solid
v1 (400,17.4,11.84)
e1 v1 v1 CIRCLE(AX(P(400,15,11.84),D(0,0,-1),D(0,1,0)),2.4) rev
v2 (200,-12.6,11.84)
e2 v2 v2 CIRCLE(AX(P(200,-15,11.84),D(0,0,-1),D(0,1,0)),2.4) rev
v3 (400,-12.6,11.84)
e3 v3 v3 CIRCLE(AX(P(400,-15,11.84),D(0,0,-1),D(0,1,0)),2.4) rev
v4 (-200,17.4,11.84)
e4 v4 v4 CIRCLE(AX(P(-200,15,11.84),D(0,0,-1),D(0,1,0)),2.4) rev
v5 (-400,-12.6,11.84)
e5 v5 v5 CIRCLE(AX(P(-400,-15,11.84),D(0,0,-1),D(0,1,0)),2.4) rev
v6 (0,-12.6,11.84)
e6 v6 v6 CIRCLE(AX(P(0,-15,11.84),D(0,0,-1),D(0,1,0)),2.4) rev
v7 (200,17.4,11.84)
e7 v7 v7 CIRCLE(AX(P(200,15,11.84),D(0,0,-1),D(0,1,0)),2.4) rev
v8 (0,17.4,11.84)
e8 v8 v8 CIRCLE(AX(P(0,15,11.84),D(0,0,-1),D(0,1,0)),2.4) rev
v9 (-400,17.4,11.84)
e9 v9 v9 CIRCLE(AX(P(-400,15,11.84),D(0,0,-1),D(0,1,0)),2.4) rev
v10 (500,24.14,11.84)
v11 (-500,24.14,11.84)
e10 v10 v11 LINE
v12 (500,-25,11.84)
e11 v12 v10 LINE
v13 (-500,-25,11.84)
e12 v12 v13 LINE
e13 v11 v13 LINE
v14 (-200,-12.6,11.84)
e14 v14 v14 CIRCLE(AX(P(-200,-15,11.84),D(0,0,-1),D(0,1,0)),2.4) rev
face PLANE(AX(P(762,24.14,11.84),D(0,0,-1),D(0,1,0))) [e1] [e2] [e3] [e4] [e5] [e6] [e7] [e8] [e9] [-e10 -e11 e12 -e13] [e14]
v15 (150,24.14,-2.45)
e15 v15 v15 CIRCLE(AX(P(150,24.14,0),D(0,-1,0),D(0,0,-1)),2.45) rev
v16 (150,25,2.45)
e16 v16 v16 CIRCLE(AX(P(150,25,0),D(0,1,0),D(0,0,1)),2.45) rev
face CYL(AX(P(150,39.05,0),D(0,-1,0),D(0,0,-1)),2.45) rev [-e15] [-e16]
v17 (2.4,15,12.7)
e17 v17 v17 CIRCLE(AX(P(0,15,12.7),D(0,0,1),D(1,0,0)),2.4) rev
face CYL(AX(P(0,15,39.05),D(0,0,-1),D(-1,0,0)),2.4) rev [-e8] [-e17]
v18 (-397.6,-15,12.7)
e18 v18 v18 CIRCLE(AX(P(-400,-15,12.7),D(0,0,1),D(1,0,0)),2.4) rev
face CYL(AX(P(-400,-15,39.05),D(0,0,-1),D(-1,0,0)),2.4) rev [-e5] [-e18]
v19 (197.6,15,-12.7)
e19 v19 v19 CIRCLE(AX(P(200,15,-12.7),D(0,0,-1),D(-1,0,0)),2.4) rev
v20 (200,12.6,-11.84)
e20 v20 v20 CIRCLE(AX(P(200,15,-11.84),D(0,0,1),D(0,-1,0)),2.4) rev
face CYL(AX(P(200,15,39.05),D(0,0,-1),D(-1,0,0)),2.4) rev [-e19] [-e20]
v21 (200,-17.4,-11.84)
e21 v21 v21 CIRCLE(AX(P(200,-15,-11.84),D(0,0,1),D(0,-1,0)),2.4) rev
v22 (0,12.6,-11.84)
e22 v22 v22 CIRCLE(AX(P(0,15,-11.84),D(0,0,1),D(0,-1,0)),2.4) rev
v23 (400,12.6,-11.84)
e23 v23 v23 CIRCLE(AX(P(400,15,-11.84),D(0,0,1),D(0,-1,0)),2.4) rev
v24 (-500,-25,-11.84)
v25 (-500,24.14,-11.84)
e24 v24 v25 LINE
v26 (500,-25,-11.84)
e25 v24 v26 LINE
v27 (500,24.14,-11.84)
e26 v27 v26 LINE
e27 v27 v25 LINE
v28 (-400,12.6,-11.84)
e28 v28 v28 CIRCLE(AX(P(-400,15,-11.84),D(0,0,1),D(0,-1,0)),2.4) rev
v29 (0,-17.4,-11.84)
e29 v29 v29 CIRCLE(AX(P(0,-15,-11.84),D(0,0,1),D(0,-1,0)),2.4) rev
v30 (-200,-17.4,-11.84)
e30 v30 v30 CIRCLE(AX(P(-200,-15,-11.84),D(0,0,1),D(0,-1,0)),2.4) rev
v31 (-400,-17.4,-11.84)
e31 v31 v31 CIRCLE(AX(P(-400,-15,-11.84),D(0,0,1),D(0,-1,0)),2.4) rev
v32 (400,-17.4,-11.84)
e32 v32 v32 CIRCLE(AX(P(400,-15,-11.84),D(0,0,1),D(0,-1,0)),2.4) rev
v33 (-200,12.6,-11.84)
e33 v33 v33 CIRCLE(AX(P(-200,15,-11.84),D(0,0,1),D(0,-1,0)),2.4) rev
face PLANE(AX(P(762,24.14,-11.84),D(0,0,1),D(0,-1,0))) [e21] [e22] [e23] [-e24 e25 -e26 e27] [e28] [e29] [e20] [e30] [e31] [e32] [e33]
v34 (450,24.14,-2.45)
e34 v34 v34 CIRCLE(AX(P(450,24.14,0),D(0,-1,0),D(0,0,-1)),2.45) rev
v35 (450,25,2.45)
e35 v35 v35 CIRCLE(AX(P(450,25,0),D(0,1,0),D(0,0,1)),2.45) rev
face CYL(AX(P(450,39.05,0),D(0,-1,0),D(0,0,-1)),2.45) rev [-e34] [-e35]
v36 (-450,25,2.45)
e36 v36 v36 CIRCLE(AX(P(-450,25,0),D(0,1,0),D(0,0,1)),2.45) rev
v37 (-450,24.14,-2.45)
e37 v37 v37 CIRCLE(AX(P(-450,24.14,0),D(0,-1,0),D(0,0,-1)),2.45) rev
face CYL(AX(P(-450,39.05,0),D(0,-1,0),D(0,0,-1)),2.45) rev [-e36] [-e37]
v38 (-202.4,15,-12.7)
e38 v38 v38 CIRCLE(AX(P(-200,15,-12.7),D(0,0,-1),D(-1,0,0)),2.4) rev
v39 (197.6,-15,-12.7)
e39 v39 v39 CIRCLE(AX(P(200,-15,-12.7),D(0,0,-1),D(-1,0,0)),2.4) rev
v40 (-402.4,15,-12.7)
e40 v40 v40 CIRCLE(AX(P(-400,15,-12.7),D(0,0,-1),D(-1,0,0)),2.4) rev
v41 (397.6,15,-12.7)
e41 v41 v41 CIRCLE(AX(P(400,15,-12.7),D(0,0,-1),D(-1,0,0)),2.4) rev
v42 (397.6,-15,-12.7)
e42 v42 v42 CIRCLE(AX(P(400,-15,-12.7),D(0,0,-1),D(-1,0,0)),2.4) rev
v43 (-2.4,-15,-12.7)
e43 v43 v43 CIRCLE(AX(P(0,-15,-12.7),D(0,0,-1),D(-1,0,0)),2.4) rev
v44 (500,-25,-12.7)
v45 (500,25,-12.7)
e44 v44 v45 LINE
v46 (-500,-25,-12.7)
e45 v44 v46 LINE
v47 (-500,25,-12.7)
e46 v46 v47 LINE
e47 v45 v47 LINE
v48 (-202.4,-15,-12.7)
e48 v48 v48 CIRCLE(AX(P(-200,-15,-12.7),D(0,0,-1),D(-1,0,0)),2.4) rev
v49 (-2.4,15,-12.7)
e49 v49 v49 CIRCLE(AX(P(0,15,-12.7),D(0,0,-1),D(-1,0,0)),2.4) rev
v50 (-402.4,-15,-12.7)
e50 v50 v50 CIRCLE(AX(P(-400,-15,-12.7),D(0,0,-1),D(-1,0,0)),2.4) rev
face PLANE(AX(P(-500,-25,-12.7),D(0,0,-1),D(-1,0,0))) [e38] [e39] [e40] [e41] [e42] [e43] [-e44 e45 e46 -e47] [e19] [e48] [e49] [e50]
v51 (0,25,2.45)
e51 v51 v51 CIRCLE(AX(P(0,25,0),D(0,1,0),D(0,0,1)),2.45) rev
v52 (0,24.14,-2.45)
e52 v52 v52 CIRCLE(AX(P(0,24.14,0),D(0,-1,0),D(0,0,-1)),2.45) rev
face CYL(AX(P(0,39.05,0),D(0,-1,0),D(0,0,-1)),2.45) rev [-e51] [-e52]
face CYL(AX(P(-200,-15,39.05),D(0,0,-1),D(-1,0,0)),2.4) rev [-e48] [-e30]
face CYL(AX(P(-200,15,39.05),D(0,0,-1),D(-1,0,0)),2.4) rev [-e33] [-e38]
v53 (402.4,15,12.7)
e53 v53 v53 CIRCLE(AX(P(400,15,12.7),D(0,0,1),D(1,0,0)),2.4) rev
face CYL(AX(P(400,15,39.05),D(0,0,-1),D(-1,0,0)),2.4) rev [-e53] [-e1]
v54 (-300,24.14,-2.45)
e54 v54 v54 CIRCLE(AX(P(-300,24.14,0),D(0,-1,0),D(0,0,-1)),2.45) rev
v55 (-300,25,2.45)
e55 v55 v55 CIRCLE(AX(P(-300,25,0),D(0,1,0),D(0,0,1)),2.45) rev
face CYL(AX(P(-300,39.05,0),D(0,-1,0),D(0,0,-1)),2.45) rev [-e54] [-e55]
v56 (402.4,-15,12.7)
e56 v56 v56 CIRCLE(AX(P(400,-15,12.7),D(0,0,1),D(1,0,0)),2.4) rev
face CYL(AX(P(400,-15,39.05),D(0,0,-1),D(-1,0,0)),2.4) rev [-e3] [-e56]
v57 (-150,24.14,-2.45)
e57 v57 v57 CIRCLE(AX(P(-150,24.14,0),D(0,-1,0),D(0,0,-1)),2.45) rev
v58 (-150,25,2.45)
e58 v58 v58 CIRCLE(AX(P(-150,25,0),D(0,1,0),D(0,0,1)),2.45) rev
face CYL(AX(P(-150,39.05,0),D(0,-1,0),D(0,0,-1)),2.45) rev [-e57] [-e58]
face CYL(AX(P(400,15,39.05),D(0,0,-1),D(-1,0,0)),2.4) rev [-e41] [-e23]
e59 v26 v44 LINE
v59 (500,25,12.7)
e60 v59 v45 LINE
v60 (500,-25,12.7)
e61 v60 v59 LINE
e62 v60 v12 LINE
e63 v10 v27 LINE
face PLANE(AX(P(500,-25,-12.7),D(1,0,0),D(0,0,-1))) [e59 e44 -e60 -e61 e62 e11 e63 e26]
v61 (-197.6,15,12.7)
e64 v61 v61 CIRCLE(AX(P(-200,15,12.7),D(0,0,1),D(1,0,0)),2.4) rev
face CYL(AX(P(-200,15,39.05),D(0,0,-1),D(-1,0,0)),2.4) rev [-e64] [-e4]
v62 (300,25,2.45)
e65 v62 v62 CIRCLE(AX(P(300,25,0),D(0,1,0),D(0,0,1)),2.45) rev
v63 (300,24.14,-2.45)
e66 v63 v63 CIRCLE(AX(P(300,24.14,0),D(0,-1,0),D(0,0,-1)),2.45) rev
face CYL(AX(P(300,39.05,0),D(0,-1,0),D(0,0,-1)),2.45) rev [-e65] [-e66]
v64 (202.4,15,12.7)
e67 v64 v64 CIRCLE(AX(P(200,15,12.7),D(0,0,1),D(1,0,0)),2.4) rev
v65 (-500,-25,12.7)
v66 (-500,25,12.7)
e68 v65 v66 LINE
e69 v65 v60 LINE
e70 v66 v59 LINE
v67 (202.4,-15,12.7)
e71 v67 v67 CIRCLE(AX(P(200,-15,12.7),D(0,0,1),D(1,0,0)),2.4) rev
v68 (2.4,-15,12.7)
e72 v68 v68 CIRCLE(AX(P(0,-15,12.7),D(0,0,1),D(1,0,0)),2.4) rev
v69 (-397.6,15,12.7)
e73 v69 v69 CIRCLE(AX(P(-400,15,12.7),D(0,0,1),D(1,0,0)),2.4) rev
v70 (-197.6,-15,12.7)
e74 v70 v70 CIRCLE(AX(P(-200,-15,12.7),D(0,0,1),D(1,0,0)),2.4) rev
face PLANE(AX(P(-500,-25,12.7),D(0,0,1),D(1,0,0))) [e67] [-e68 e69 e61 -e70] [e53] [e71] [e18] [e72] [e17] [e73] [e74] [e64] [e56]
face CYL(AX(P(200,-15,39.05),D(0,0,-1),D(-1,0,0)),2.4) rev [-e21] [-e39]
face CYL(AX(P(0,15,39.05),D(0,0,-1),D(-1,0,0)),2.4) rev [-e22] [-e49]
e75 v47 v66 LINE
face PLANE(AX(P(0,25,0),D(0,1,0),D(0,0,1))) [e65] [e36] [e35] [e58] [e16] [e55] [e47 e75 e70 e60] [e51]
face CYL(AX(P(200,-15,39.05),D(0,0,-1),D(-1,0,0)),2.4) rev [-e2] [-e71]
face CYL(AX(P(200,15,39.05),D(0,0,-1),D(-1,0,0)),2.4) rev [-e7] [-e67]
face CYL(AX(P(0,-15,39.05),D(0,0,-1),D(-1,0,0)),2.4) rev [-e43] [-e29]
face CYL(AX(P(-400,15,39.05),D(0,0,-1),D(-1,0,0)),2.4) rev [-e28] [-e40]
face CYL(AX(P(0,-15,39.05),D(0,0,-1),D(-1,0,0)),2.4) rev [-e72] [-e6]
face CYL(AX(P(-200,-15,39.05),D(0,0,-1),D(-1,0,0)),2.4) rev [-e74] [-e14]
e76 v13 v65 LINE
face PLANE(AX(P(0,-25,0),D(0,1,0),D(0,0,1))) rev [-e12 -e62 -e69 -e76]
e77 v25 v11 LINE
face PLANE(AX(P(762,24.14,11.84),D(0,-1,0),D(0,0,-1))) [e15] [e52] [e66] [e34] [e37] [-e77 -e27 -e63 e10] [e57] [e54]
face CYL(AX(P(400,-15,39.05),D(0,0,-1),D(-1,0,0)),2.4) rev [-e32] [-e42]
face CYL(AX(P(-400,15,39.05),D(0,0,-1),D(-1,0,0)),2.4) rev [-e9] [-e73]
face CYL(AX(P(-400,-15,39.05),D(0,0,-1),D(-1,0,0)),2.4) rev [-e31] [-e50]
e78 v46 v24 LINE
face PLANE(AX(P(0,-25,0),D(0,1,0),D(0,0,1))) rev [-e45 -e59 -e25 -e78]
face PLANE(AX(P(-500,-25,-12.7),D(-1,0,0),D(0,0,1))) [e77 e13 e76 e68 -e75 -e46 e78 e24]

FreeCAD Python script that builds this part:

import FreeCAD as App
import Part
import Sketcher
from FreeCAD import Vector

doc = App.newDocument("Part")
body = doc.addObject("PartDesign::Body", "Body")

# Sketch on XZ plane
sketch1 = doc.addObject("Sketcher::SketchObject", "Sketch")
body.addObject(sketch1)
sketch1.AttachmentSupport = (doc.XZ_Plane, [""])
sketch1.MapMode = "FlatFace"
sketch1.addGeometry([
    Part.LineSegment(Vector(-500, -12.7, 0), Vector(-500, 12.7, 0)),
    Part.LineSegment(Vector(-500, 12.7, 0), Vector(500, 12.7, 0)),
    Part.LineSegment(Vector(500, 12.7, 0), Vector(500, -12.7, 0)),
    Part.LineSegment(Vector(500, -12.7, 0), Vector(-500, -12.7, 0)),
], False)
sketch1.addConstraint([
    Sketcher.Constraint("Coincident", 0, 2, 1, 1),
    Sketcher.Constraint("Coincident", 1, 2, 2, 1),
    Sketcher.Constraint("Coincident", 2, 2, 3, 1),
    Sketcher.Constraint("Coincident", 3, 2, 0, 1),
    Sketcher.Constraint("Vertical", 0),
    Sketcher.Constraint("Horizontal", 1),
    Sketcher.Constraint("Vertical", 2),
    Sketcher.Constraint("Horizontal", 3),
    Sketcher.Constraint("Symmetric", 0, 2, 2, 2, -1, 1),
    Sketcher.Constraint("DistanceX", 1, 1, 1, 2, 1000.0),
    Sketcher.Constraint("DistanceY", 0, 1, 0, 2, 25.4),
])
pad1 = doc.addObject("PartDesign::Pad", "Pad")
body.addObject(pad1)
pad1.Profile = sketch1
pad1.Type = "TwoLengths"
pad1.Length = 25
pad1.Length2 = 25
pad1.Reversed = True

# Sketch on YZ plane
sketch2 = doc.addObject("Sketcher::SketchObject", "Sketch001")
body.addObject(sketch2)
sketch2.AttachmentSupport = (doc.YZ_Plane, [""])
sketch2.MapMode = "FlatFace"
sketch2.addGeometry([
    Part.LineSegment(Vector(24.14, 11.84, 0), Vector(-25.573199, 11.84, 0)),
    Part.LineSegment(Vector(-25.573199, 11.84, 0), Vector(-25.573199, -11.84, 0)),
    Part.LineSegment(Vector(-25.573199, -11.84, 0), Vector(24.14, -11.84, 0)),
    Part.LineSegment(Vector(24.14, -11.84, 0), Vector(24.14, 11.84, 0)),
], False)
sketch2.addConstraint([
    Sketcher.Constraint("Coincident", 0, 2, 1, 1),
    Sketcher.Constraint("Coincident", 1, 2, 2, 1),
    Sketcher.Constraint("Coincident", 2, 2, 3, 1),
    Sketcher.Constraint("Coincident", 3, 2, 0, 1),
    Sketcher.Constraint("Horizontal", 0),
    Sketcher.Constraint("Vertical", 1),
    Sketcher.Constraint("Horizontal", 2),
    Sketcher.Constraint("Vertical", 3),
    Sketcher.Constraint("DistanceY", 1, 2, 1, 1, 23.68),
    Sketcher.Constraint("DistanceY", -1, 1, 0, 2, 11.84),
    Sketcher.Constraint("DistanceX", -1, 1, 2, 2, 24.14),
    Sketcher.Constraint("DistanceX", 0, 2, 0, 1, 49.713199),
])
pocket1 = doc.addObject("PartDesign::Pocket", "Pocket")
body.addObject(pocket1)
pocket1.Profile = sketch2
pocket1.Type = "ThroughAll"
pocket1.Midplane = True

# Sketch on XZ plane
sketch3 = doc.addObject("Sketcher::SketchObject", "Sketch002")
body.addObject(sketch3)
sketch3.AttachmentSupport = (doc.XZ_Plane, [""])
sketch3.MapMode = "FlatFace"
sketch3.addGeometry([
    Part.Circle(Vector(0, 0, 0), Vector(0, 0, 1), 2.45),  # 0
    Part.Circle(Vector(150, 0, 0), Vector(0, 0, 1), 2.45),  # 1
    Part.Circle(Vector(300, 0, 0), Vector(0, 0, 1), 2.45),  # 2
    Part.Circle(Vector(450, 0, 0), Vector(0, 0, 1), 2.45),  # 3
    Part.Circle(Vector(-150, 0, 0), Vector(0, 0, 1), 2.45),  # 4
    Part.Circle(Vector(-300, 0, 0), Vector(0, 0, 1), 2.45),  # 5
    Part.Circle(Vector(-450, 0, 0), Vector(0, 0, 1), 2.45),  # 6
], False)
sketch3.addConstraint([
    Sketcher.Constraint("Coincident", 0, 3, -1, 1),
    Sketcher.Constraint("Equal", 0, 1),
    Sketcher.Constraint("Equal", 1, 2),
    Sketcher.Constraint("Equal", 2, 3),
    Sketcher.Constraint("Equal", 3, 4),
    Sketcher.Constraint("Equal", 4, 5),
    Sketcher.Constraint("Equal", 5, 6),
    Sketcher.Constraint("Symmetric", 1, 3, 4, 3, -1, 1),
    Sketcher.Constraint("Symmetric", 2, 3, 5, 3, -1, 1),
    Sketcher.Constraint("Symmetric", 3, 3, 6, 3, -1, 1),
    Sketcher.Constraint("PointOnObject", 1, 3, -1),
    Sketcher.Constraint("PointOnObject", 2, 3, -1),
    Sketcher.Constraint("PointOnObject", 3, 3, -1),
    Sketcher.Constraint("Diameter", 0, 4.9),
    Sketcher.Constraint("DistanceX", -1, 1, 1, 3, 150.0),
    Sketcher.Constraint("DistanceX", -1, 1, 2, 3, 300.0),
    Sketcher.Constraint("DistanceX", -1, 1, 3, 3, 450.0),
])
pocket2 = doc.addObject("PartDesign::Pocket", "Pocket001")
body.addObject(pocket2)
pocket2.Profile = sketch3
pocket2.Length = 39.05

# Sketch on XY plane
sketch4 = doc.addObject("Sketcher::SketchObject", "Sketch003")
body.addObject(sketch4)
sketch4.AttachmentSupport = (doc.XY_Plane, [""])
sketch4.MapMode = "FlatFace"
sketch4.addGeometry([
    Part.Circle(Vector(0, 15, 0), Vector(0, 0, 1), 2.4),  # 0
    Part.Circle(Vector(0, -15, 0), Vector(0, 0, 1), 2.4),  # 1
    Part.Circle(Vector(200, 15, 0), Vector(0, 0, 1), 2.4),  # 2
    Part.Circle(Vector(200, -15, 0), Vector(0, 0, 1), 2.4),  # 3
    Part.Circle(Vector(400, 15, 0), Vector(0, 0, 1), 2.4),  # 4
    Part.Circle(Vector(400, -15, 0), Vector(0, 0, 1), 2.4),  # 5
    Part.Circle(Vector(600, 15, 0), Vector(0, 0, 1), 2.4),  # 6
    Part.Circle(Vector(600, -15, 0), Vector(0, 0, 1), 2.4),  # 7
    Part.Circle(Vector(-200, 15, 0), Vector(0, 0, 1), 2.4),  # 8
    Part.Circle(Vector(-200, -15, 0), Vector(0, 0, 1), 2.4),  # 9
    Part.Circle(Vector(-400, 15, 0), Vector(0, 0, 1), 2.4),  # 10
    Part.Circle(Vector(-400, -15, 0), Vector(0, 0, 1), 2.4),  # 11
    Part.Circle(Vector(-600, 15, 0), Vector(0, 0, 1), 2.4),  # 12
    Part.Circle(Vector(-600, -15, 0), Vector(0, 0, 1), 2.4),  # 13
], False)
sketch4.addConstraint([
    Sketcher.Constraint("Equal", 0, 1),
    Sketcher.Constraint("Equal", 1, 2),
    Sketcher.Constraint("Equal", 2, 3),
    Sketcher.Constraint("Equal", 3, 4),
    Sketcher.Constraint("Equal", 4, 5),
    Sketcher.Constraint("Equal", 5, 6),
    Sketcher.Constraint("Equal", 6, 7),
    Sketcher.Constraint("Equal", 7, 8),
    Sketcher.Constraint("Equal", 8, 9),
    Sketcher.Constraint("Equal", 9, 10),
    Sketcher.Constraint("Equal", 10, 11),
    Sketcher.Constraint("Equal", 11, 12),
    Sketcher.Constraint("Equal", 12, 13),
    Sketcher.Constraint("Symmetric", 0, 3, 1, 3, -1, 1),
    Sketcher.Constraint("Symmetric", 3, 3, 8, 3, -1, 1),
    Sketcher.Constraint("Symmetric", 2, 3, 9, 3, -1, 1),
    Sketcher.Constraint("Symmetric", 5, 3, 10, 3, -1, 1),
    Sketcher.Constraint("Symmetric", 4, 3, 11, 3, -1, 1),
    Sketcher.Constraint("Symmetric", 7, 3, 12, 3, -1, 1),
    Sketcher.Constraint("Symmetric", 6, 3, 13, 3, -1, 1),
    Sketcher.Constraint("Symmetric", 2, 3, 8, 3, -2),
    Sketcher.Constraint("Symmetric", 4, 3, 10, 3, -2),
    Sketcher.Constraint("Symmetric", 6, 3, 12, 3, -2),
    Sketcher.Constraint("PointOnObject", 0, 3, -2),
    Sketcher.Constraint("Horizontal", 0, 3, 2, 3),
    Sketcher.Constraint("Horizontal", 2, 3, 4, 3),
    Sketcher.Constraint("Horizontal", 4, 3, 6, 3),
    Sketcher.Constraint("Diameter", 0, 4.8),
    Sketcher.Constraint("DistanceY", -1, 1, 0, 3, 15.0),
    Sketcher.Constraint("DistanceX", -1, 1, 2, 3, 200.0),
    Sketcher.Constraint("DistanceX", -1, 1, 4, 3, 400.0),
    Sketcher.Constraint("DistanceX", -1, 1, 6, 3, 600.0),
])
pocket3 = doc.addObject("PartDesign::Pocket", "Pocket002")
body.addObject(pocket3)
pocket3.Profile = sketch4
pocket3.Type = "ThroughAll"
pocket3.Midplane = True

doc.recompute()
